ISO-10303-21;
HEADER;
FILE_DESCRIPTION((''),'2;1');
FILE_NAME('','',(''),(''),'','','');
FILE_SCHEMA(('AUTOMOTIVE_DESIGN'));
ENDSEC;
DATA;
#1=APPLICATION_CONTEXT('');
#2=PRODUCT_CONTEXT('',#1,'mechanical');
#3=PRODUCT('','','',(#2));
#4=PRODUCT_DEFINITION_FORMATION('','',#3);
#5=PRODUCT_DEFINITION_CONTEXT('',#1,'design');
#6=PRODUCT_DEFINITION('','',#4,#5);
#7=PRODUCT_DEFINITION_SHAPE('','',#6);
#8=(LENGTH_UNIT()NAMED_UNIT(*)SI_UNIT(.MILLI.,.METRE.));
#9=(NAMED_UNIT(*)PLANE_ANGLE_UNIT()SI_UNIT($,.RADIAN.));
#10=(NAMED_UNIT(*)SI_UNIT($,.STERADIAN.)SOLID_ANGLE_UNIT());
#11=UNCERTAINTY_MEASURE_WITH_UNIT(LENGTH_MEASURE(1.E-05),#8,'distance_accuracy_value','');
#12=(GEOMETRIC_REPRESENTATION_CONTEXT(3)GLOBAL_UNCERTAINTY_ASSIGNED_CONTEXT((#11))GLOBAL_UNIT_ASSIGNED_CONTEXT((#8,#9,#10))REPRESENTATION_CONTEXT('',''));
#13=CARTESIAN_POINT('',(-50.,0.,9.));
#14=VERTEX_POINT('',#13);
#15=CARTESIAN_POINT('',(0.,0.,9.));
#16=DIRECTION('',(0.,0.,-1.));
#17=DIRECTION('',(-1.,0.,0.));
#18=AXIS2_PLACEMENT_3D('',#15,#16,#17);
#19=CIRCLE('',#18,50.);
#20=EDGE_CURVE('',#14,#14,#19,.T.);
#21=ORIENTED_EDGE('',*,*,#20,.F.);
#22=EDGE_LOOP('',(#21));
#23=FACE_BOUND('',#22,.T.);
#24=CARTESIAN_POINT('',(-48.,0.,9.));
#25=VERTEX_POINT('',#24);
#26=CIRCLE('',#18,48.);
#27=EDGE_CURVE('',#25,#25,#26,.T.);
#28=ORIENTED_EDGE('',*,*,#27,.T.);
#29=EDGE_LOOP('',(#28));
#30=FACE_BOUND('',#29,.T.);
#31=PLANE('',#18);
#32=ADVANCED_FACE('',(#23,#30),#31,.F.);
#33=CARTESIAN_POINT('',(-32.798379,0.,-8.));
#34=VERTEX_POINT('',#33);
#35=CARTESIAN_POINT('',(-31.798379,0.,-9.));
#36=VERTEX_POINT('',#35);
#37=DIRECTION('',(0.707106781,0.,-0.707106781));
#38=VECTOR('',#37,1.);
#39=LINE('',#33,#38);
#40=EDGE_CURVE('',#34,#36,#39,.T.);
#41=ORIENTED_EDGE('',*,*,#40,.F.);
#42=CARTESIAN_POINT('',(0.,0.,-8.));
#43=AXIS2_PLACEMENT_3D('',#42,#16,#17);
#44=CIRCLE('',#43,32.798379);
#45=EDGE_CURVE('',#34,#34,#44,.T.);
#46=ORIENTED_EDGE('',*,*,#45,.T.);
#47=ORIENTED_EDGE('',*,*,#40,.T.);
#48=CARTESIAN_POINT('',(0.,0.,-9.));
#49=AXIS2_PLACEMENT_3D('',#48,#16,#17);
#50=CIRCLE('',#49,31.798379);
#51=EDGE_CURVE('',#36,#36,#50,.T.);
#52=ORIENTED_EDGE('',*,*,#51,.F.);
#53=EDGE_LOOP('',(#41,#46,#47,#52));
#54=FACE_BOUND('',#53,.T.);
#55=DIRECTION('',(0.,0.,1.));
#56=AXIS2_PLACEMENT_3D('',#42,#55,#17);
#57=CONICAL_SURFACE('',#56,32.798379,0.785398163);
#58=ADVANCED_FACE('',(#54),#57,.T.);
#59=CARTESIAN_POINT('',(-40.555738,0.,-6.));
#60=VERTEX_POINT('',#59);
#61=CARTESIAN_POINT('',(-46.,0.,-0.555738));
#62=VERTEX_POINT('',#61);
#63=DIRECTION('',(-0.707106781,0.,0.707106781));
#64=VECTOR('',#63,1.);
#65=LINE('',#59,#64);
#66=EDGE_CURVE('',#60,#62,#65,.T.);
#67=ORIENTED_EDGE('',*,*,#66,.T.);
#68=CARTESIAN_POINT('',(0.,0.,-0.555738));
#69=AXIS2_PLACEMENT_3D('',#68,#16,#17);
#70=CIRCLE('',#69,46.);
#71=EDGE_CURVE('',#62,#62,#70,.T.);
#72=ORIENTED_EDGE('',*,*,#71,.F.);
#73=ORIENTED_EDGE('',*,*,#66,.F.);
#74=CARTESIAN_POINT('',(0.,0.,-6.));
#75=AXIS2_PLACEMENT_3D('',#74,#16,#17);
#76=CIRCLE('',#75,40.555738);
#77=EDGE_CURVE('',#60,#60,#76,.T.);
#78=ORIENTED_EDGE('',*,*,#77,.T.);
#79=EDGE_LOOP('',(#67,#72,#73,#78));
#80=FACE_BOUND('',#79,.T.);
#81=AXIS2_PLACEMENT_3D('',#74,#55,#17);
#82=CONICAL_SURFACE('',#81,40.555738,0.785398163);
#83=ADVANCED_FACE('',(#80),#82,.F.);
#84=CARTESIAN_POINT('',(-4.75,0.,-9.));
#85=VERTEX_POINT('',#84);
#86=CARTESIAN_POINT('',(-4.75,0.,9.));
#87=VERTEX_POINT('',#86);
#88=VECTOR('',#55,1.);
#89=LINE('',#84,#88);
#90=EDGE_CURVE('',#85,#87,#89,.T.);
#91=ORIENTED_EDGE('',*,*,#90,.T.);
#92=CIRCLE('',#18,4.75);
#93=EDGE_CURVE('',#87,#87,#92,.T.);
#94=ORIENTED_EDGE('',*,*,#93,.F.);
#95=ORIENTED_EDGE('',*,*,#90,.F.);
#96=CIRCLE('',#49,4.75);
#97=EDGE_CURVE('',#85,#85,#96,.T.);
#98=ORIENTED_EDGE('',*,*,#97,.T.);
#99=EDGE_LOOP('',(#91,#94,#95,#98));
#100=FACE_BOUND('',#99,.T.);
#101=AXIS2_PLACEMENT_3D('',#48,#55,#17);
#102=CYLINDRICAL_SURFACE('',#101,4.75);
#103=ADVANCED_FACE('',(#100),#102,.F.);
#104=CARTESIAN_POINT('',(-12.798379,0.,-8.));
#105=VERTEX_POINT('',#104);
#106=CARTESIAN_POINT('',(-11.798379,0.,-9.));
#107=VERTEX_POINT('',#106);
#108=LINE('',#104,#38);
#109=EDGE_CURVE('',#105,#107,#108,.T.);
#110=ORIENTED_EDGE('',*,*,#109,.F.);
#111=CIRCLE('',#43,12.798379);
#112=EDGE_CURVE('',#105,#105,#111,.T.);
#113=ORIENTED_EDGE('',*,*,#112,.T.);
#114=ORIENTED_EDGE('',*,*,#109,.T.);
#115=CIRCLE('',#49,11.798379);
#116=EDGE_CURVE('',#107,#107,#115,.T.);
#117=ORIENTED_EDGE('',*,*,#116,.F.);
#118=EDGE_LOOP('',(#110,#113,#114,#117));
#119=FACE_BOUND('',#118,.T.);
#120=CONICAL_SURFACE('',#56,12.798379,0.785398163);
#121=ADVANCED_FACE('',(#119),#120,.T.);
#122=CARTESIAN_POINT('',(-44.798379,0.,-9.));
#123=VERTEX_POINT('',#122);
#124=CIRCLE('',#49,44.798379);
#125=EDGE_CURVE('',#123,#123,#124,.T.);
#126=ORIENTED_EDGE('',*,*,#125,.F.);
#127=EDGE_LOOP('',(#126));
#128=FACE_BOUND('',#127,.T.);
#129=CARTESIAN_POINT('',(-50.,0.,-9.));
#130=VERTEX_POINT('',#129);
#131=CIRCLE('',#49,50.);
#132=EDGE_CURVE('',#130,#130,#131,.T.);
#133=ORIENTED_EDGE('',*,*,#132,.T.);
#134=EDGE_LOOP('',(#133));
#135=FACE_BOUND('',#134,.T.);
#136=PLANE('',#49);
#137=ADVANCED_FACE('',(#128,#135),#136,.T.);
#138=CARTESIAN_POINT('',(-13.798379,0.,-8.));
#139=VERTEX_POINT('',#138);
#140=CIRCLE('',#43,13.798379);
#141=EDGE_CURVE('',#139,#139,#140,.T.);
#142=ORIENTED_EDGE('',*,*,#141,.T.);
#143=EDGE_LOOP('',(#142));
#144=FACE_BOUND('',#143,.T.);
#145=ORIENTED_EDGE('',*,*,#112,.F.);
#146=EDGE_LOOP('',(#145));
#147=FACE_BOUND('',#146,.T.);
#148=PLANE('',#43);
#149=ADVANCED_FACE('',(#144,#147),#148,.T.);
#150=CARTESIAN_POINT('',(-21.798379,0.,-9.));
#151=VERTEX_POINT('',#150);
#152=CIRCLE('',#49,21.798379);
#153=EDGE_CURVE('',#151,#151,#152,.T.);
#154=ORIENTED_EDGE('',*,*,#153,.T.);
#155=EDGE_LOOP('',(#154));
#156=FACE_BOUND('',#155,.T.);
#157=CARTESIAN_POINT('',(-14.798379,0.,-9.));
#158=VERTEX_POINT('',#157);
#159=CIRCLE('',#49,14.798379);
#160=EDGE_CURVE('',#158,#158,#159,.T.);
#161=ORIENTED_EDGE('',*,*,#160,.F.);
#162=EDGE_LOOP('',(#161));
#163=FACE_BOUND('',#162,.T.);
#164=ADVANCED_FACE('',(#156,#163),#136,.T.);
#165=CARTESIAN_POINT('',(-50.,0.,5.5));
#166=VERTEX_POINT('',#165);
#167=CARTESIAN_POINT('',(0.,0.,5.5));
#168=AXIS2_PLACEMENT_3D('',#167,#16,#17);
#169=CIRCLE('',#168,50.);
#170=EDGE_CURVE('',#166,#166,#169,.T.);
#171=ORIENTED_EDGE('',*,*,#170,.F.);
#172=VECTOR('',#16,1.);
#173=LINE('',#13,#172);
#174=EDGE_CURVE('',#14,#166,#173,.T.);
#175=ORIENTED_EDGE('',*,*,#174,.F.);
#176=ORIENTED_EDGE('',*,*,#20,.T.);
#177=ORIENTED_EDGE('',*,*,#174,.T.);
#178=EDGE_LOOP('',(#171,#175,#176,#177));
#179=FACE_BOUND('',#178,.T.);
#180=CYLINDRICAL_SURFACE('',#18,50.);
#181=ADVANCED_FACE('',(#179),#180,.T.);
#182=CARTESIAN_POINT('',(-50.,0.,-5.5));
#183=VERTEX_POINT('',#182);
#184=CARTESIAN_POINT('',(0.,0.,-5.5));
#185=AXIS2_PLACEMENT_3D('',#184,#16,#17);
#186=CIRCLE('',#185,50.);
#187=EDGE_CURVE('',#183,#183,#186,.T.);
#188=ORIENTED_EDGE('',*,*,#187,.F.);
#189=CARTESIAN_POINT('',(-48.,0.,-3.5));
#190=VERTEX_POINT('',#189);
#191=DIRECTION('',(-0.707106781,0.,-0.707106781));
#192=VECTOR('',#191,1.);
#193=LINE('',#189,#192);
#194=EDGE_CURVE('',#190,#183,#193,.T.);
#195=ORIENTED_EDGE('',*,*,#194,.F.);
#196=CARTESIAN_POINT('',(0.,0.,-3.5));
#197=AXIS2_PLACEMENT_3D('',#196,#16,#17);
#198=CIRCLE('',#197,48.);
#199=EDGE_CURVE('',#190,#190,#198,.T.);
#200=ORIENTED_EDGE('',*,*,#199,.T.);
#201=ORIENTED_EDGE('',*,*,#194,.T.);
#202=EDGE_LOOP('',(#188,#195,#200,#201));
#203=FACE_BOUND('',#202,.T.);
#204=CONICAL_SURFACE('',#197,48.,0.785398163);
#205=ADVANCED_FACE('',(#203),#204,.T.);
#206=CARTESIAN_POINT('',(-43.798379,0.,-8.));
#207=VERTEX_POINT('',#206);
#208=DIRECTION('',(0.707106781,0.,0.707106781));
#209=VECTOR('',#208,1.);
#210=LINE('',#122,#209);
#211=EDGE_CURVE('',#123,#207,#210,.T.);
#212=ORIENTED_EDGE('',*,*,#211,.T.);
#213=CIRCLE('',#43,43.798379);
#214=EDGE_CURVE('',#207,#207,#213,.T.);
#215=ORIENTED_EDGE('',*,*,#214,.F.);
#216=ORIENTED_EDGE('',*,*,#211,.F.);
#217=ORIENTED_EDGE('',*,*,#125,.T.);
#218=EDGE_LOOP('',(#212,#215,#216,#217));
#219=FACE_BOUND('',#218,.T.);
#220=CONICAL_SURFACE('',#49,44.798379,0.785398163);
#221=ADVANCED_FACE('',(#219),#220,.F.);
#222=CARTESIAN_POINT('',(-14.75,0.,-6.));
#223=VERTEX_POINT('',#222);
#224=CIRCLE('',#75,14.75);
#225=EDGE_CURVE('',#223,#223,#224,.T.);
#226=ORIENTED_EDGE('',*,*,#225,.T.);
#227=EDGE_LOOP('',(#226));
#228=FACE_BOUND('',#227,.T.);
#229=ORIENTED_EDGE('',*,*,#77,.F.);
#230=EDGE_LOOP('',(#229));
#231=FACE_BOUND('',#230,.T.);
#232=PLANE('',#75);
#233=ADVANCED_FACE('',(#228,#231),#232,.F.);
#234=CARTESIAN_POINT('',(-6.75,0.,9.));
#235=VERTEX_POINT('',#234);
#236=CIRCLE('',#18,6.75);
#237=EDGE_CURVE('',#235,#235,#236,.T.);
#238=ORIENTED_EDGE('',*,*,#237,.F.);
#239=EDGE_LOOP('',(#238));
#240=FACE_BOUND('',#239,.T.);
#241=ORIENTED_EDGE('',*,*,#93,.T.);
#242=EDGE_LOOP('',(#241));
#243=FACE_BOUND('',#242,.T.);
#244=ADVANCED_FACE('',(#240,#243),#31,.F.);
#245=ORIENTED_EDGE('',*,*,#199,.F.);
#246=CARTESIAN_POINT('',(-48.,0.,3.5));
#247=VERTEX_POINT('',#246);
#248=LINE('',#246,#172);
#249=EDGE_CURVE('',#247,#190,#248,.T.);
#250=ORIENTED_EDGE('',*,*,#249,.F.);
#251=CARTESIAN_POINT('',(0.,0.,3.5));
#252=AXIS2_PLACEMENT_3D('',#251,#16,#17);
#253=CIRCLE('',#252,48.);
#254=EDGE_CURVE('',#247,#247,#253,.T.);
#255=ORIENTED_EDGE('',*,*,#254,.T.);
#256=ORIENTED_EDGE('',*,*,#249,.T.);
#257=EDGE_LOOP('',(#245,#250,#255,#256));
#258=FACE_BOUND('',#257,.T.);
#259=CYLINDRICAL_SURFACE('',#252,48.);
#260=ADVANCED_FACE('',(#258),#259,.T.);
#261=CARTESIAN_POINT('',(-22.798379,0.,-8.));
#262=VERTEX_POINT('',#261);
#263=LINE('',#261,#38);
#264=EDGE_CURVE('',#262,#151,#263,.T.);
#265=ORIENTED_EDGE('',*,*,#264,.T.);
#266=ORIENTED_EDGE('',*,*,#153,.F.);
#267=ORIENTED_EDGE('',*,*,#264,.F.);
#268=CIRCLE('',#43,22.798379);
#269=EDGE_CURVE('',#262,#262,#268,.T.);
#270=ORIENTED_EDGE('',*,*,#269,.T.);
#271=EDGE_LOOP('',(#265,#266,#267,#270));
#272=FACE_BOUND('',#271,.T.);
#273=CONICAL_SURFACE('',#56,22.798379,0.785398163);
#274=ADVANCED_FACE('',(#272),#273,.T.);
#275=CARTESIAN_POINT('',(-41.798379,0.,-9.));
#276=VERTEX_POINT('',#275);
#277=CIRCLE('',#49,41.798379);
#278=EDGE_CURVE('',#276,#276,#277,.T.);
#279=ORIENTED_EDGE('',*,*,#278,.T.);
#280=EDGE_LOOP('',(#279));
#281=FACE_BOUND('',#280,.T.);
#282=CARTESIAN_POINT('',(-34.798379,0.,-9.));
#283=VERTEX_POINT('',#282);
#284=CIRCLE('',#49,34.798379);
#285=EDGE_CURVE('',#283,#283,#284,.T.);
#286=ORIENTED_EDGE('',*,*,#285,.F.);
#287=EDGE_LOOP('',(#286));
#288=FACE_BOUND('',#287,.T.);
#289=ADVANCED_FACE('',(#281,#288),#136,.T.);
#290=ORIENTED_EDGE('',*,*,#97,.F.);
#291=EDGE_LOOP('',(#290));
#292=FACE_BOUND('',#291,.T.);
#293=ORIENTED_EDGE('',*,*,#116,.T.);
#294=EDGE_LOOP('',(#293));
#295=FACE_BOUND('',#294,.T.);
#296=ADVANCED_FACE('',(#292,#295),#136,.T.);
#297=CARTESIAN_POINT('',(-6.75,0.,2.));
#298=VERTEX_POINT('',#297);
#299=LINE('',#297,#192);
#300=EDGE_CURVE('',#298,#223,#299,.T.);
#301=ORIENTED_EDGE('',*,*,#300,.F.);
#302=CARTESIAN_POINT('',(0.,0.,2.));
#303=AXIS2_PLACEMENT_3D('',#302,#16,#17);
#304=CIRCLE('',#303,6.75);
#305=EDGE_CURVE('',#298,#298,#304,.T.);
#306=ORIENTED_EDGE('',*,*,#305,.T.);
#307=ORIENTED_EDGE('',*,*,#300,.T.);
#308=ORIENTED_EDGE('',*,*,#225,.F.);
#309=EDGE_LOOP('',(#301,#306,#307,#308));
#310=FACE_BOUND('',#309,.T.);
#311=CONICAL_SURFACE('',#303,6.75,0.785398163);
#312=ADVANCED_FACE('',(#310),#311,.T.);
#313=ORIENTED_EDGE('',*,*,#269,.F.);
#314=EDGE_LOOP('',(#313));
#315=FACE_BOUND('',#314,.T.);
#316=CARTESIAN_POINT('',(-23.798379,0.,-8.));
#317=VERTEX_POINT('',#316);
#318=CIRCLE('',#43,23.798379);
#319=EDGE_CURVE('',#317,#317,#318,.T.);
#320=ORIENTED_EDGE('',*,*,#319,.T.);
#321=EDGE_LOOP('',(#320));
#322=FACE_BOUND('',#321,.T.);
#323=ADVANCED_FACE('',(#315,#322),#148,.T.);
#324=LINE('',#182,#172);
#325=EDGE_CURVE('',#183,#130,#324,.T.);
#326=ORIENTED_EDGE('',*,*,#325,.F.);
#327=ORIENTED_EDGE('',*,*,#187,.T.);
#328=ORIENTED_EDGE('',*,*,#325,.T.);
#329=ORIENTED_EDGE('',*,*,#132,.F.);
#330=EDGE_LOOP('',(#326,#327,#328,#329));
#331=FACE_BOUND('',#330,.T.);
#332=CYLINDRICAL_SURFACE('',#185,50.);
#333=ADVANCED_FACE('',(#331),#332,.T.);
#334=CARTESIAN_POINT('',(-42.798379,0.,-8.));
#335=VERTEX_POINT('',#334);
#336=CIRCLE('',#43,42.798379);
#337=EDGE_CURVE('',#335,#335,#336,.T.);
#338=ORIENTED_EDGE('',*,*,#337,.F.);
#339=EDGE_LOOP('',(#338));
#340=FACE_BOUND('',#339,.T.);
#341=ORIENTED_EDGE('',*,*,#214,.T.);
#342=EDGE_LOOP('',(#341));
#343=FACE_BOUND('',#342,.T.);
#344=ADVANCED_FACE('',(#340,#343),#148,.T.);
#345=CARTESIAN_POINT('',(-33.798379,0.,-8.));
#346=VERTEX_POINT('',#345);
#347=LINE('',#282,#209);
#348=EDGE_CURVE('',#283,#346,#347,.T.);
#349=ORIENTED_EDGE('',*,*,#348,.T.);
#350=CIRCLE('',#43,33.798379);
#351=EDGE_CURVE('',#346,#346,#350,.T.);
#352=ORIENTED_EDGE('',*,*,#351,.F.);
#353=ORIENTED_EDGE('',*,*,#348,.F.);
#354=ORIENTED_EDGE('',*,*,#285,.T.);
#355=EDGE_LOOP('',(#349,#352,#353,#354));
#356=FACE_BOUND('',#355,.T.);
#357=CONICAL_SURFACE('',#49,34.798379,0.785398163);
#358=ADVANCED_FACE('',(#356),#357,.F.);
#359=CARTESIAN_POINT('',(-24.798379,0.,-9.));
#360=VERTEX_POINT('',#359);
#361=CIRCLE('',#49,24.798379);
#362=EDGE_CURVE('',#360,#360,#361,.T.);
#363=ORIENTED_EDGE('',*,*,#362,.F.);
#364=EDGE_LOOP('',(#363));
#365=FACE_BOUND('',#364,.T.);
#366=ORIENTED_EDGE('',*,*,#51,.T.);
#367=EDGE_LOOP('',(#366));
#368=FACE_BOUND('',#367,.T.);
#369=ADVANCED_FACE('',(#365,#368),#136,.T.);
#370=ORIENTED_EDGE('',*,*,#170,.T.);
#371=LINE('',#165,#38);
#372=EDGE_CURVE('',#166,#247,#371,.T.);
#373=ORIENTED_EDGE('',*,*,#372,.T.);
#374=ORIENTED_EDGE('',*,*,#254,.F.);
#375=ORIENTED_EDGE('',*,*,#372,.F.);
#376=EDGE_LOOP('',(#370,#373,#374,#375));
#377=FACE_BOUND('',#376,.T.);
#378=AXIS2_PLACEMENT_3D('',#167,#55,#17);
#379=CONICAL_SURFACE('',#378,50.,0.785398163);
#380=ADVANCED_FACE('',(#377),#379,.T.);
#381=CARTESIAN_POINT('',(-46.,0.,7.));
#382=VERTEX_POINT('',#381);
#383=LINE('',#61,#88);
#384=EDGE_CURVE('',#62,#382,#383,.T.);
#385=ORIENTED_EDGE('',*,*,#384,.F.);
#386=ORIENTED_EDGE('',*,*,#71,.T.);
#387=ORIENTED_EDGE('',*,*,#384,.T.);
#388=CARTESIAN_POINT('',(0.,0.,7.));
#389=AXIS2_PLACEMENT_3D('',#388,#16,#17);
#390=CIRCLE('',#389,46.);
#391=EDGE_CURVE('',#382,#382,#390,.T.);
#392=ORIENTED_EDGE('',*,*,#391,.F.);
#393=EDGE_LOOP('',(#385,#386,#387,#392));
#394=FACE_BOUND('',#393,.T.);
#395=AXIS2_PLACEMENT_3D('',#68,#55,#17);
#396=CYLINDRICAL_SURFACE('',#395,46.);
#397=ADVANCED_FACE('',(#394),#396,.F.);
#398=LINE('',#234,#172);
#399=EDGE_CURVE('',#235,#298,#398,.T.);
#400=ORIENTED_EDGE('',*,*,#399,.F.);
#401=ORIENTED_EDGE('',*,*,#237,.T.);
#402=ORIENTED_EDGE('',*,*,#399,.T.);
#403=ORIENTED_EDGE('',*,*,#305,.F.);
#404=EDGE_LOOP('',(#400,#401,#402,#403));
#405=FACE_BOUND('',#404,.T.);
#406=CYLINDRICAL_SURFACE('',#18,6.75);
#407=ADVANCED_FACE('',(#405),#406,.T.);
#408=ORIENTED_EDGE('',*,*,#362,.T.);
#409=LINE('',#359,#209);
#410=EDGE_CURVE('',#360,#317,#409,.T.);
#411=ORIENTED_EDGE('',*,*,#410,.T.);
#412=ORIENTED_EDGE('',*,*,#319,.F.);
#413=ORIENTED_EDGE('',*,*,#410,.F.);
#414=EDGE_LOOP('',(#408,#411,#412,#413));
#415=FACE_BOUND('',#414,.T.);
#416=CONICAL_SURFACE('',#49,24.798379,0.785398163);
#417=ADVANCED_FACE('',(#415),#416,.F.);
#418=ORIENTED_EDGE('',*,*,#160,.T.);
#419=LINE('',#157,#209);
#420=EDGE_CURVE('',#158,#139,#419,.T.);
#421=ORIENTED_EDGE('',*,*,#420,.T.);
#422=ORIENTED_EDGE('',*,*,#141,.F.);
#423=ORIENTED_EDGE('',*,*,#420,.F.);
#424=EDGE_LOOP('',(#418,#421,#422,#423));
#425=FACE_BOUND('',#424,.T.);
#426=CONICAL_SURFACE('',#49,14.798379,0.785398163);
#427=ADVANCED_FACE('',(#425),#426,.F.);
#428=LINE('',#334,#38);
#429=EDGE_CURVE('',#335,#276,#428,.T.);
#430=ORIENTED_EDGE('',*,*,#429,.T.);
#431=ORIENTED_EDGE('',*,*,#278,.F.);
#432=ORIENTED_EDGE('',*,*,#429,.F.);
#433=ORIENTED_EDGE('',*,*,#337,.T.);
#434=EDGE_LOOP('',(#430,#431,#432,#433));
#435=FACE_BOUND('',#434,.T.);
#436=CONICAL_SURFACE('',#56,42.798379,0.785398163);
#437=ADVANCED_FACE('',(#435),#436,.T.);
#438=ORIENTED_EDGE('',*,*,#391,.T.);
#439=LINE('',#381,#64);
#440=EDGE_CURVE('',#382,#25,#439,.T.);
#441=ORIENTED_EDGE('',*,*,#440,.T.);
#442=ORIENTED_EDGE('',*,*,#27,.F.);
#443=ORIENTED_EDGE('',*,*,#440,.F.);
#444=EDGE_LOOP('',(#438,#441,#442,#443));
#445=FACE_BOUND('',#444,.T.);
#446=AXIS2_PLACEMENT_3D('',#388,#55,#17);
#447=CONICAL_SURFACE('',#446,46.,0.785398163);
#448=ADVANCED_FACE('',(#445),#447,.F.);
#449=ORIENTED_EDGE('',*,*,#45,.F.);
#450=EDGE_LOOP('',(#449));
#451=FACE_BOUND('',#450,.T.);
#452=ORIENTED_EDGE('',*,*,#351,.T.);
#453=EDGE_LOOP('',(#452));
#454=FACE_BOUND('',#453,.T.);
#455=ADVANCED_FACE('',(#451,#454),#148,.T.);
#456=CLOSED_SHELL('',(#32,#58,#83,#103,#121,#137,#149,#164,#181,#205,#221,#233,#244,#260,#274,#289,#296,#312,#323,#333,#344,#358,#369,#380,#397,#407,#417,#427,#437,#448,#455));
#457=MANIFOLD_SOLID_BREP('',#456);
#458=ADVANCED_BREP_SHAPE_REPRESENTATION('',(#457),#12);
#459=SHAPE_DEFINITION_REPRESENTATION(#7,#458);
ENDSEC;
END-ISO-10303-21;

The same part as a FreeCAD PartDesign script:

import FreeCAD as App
import Part
import Sketcher

V = App.Vector
Q = App.Units.Quantity


def add_polygon(sketch, points):
    """Adds a closed chain of lines whose ends are joined by coincident constraints."""
    first, n = sketch.GeometryCount, len(points)
    for a, b in zip(points, points[1:] + points[:1]):
        sketch.addGeometry(Part.LineSegment(App.Vector(*a, 0), App.Vector(*b, 0)), False)
    for i in range(n):
        sketch.addConstraint(Sketcher.Constraint("Coincident", first + i, 2, first + (i + 1) % n, 1))

doc = App.newDocument("Part")
params = doc.addObject("Spreadsheet::Sheet", "Params")
for row, (alias, value) in enumerate([
    ("sketch1_width", "2 mm"),
    ("sketch1_width2", "1 mm"),
    ("sketch1_width3", "7 mm"),
    ("sketch1_height", "18 mm"),
    ("revolution_angle", "360 deg"),
], start=1):
    params.set(f"A{row}", alias)
    params.set(f"B{row}", "=" + value)
    params.setAlias(f"B{row}", alias)

body = doc.addObject("PartDesign::Body", "Body")

# Sketch on XZ plane
sketch1 = doc.addObject("Sketcher::SketchObject", "Sketch")
body.addObject(sketch1)
sketch1.AttachmentSupport = (doc.XZ_Plane, [""])
sketch1.MapMode = "FlatFace"
add_polygon(sketch1, [(-4.8, -9), (-4.8, 9), (-6.8, 9), (-6.8, 2), (-14.8, -6), (-40.6, -6), (-46, -0.6), (-46, 7), (-48, 9), (-50, 9), (-50, 5.5), (-48, 3.5), (-48, -3.5), (-50, -5.5), (-50, -9), (-44.8, -9), (-43.8, -8), (-42.8, -8), (-41.8, -9), (-34.8, -9), (-33.8, -8), (-32.8, -8), (-31.8, -9), (-24.8, -9), (-23.8, -8), (-22.8, -8), (-21.8, -9), (-14.8, -9), (-13.8, -8), (-12.8, -8), (-11.8, -9)])  # lines 0-30
sketch1.addConstraint([
    Sketcher.Constraint("Vertical", 0),
    Sketcher.Constraint("Horizontal", 1),
    Sketcher.Constraint("Vertical", 2),
    Sketcher.Constraint("Horizontal", 4),
    Sketcher.Constraint("Vertical", 6),
    Sketcher.Constraint("Horizontal", 8),
    Sketcher.Constraint("Vertical", 9),
    Sketcher.Constraint("Vertical", 11),
    Sketcher.Constraint("Vertical", 13),
    Sketcher.Constraint("Horizontal", 14),
    Sketcher.Constraint("Horizontal", 16),
    Sketcher.Constraint("Horizontal", 18),
    Sketcher.Constraint("Horizontal", 20),
    Sketcher.Constraint("Horizontal", 22),
    Sketcher.Constraint("Horizontal", 24),
    Sketcher.Constraint("Horizontal", 26),
    Sketcher.Constraint("Horizontal", 28),
    Sketcher.Constraint("Horizontal", 30),
    Sketcher.Constraint("Symmetric", 9, 2, 12, 2, -1),
    Sketcher.Constraint("Perpendicular", 3, 5),
    Sketcher.Constraint("Parallel", 5, 7),
    Sketcher.Constraint("Parallel", 7, 10),
    Sketcher.Constraint("Perpendicular", 10, 12),
    Sketcher.Constraint("Parallel", 12, 15),
    Sketcher.Constraint("Perpendicular", 15, 17),
    Sketcher.Constraint("Perpendicular", 17, 19),
    Sketcher.Constraint("Perpendicular", 19, 21),
    Sketcher.Constraint("Perpendicular", 21, 23),
    Sketcher.Constraint("Perpendicular", 23, 25),
    Sketcher.Constraint("Perpendicular", 25, 27),
    Sketcher.Constraint("Perpendicular", 27, 29),
    Sketcher.Constraint("Horizontal", 1, 2, 7, 2),
    Sketcher.Constraint("Horizontal", 14, 2, 17, 2),
    Sketcher.Constraint("Horizontal", 16, 2, 19, 2),
    Sketcher.Constraint("Horizontal", 18, 2, 21, 2),
    Sketcher.Constraint("Horizontal", 20, 2, 23, 2),
    Sketcher.Constraint("Horizontal", 22, 2, 25, 2),
    Sketcher.Constraint("Horizontal", 24, 2, 27, 2),
    Sketcher.Constraint("Horizontal", 26, 2, 29, 2),
    Sketcher.Constraint("Vertical", 7, 2, 10, 2),
    Sketcher.Constraint("Equal", 1, 8),
    Sketcher.Constraint("Equal", 16, 20),
    Sketcher.Constraint("Equal", 18, 22),
    Sketcher.Constraint("Equal", 20, 24),
    Sketcher.Constraint("Equal", 22, 26),
    Sketcher.Constraint("Equal", 24, 28),
    Sketcher.Constraint("Equal", 26, 2),
    Sketcher.Constraint("Equal", 2, 11),
    Sketcher.Constraint("Equal", 9, 13),
    Sketcher.Constraint("Equal", 7, 10),
    Sketcher.Constraint("Equal", 10, 12),
    Sketcher.Constraint("DistanceX", 1, 2, 1, 1, Q("2 mm")),
    Sketcher.Constraint("DistanceX", 16, 1, 16, 2, Q("1 mm")),
    Sketcher.Constraint("DistanceX", 18, 1, 18, 2, Q("7 mm")),
    Sketcher.Constraint("DistanceY", 0, 1, 0, 2, Q("18 mm")),
    Sketcher.Constraint("DistanceY", 3, 2, -1, 1, Q("6 mm")),
    Sketcher.Constraint("DistanceX", 5, 2, -1, 1, Q("46 mm")),
    Sketcher.Constraint("DistanceY", 15, 2, -1, 1, Q("8 mm")),
    Sketcher.Constraint("DistanceX", 0, 2, -1, 1, Q("4.75 mm")),
    Sketcher.Constraint("DistanceX", 14, 1, 14, 2, Q("5.201621 mm")),
    Sketcher.Constraint("Distance", 5, Q("7.699349 mm")),
])
sketch1.setExpression("Constraints[82]", "Params.sketch1_width")
sketch1.setExpression("Constraints[83]", "Params.sketch1_width2")
sketch1.setExpression("Constraints[84]", "Params.sketch1_width3")
sketch1.setExpression("Constraints[85]", "Params.sketch1_height")
revolution = doc.addObject("PartDesign::Revolution", "Revolution")
body.addObject(revolution)
revolution.Profile = sketch1
revolution.ReferenceAxis = (sketch1, ["V_Axis"])
revolution.setExpression("Angle", "Params.revolution_angle")

doc.recompute()
